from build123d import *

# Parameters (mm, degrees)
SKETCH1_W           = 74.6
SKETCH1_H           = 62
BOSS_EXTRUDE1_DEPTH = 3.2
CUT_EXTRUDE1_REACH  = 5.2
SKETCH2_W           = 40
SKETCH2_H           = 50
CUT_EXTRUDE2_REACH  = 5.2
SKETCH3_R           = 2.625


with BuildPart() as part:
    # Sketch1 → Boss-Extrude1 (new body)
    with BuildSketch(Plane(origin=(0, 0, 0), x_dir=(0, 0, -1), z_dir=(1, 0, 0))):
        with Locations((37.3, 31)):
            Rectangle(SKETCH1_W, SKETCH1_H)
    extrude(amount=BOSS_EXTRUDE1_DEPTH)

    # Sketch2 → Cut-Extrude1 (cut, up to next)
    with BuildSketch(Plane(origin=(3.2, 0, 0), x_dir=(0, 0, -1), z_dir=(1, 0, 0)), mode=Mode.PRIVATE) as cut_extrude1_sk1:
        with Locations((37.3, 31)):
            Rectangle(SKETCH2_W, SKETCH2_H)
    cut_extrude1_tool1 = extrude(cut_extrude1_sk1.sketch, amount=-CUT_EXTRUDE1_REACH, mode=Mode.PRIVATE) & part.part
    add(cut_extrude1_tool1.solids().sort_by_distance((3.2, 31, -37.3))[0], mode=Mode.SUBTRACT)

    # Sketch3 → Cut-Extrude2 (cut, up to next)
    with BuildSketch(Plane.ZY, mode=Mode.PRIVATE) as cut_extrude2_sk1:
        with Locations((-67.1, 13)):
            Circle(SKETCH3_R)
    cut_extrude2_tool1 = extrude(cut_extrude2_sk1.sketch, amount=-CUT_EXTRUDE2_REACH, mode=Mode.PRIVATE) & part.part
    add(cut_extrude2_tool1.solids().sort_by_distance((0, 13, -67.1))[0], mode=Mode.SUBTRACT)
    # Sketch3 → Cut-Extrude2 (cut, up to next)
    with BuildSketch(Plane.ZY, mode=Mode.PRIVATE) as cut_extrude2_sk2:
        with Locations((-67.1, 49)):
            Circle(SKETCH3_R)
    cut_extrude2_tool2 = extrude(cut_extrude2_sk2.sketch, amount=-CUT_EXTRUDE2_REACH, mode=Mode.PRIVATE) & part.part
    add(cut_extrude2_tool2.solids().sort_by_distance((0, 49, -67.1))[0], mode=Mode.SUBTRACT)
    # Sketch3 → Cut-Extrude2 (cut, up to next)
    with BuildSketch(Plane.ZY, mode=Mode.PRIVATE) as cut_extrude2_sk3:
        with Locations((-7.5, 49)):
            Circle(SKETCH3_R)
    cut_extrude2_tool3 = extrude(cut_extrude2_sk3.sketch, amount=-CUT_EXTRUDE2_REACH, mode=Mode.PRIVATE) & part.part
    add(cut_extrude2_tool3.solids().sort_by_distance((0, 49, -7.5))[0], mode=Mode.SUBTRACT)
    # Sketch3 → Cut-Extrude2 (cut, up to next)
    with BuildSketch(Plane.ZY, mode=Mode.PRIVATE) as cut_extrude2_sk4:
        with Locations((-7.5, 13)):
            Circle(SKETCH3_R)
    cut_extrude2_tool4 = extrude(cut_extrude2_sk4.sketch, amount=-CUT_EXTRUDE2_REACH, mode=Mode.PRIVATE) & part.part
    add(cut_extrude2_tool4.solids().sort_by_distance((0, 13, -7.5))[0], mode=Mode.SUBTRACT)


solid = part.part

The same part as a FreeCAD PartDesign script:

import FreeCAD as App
import Part
import Sketcher


def add_polygon(sketch, points):
    """Adds a closed chain of lines whose ends are joined by coincident constraints."""
    first, n = sketch.GeometryCount, len(points)
    for a, b in zip(points, points[1:] + points[:1]):
        sketch.addGeometry(Part.LineSegment(App.Vector(*a, 0), App.Vector(*b, 0)), False)
    for i in range(n):
        sketch.addConstraint(Sketcher.Constraint("Coincident", first + i, 2, first + (i + 1) % n, 1))

doc = App.newDocument("Part")
body = doc.addObject("PartDesign::Body", "Body")

# Sketch on YZ plane
sketch1 = body.newObject("Sketcher::SketchObject", "Sketch")
sketch1.AttachmentSupport = (doc.getObject("YZ_Plane"), [""])
sketch1.MapMode = "FlatFace"
add_polygon(sketch1, [(62, 0), (0, 0), (0, -75), (62, -75)])  # lines 0-3
sketch1.addConstraint(Sketcher.Constraint("Horizontal", 0))
sketch1.addConstraint(Sketcher.Constraint("Vertical", 1))
sketch1.addConstraint(Sketcher.Constraint("Horizontal", 2))
sketch1.addConstraint(Sketcher.Constraint("Vertical", 3))
sketch1.addConstraint(Sketcher.Constraint("Coincident", 0, 2, -1, 1))
sketch1.addConstraint(Sketcher.Constraint("DistanceX", 0, 2, 0, 1, 62.0))
sketch1.addConstraint(Sketcher.Constraint("DistanceY", 1, 2, 1, 1, 74.6))
pad1 = body.newObject("PartDesign::Pad", "Pad")
pad1.Profile = sketch1
pad1.Length = 3.2

# Sketch on YZ plane
sketch2 = body.newObject("Sketcher::SketchObject", "Sketch001")
sketch2.AttachmentSupport = (doc.getObject("YZ_Plane"), [""])
sketch2.MapMode = "FlatFace"
sketch2.AttachmentOffset = App.Placement(App.Vector(0, 0, 3.2), App.Rotation())
add_polygon(sketch2, [(56, -17), (6, -17), (6, -57), (56, -57)])  # lines 0-3
sketch2.addConstraint(Sketcher.Constraint("Horizontal", 0))
sketch2.addConstraint(Sketcher.Constraint("Vertical", 1))
sketch2.addConstraint(Sketcher.Constraint("Horizontal", 2))
sketch2.addConstraint(Sketcher.Constraint("Vertical", 3))
sketch2.addConstraint(Sketcher.Constraint("DistanceX", 0, 2, 0, 1, 50.0))
sketch2.addConstraint(Sketcher.Constraint("DistanceY", 1, 2, 1, 1, 40.0))
sketch2.addConstraint(Sketcher.Constraint("DistanceX", -1, 1, 0, 2, 6.0))
sketch2.addConstraint(Sketcher.Constraint("DistanceY", 0, 2, -1, 1, 17.3))
pocket1 = body.newObject("PartDesign::Pocket", "Pocket")
pocket1.Profile = sketch2
pocket1.Type = "UpToFirst"

# Sketch on YZ plane
sketch3 = body.newObject("Sketcher::SketchObject", "Sketch002")
sketch3.AttachmentSupport = (doc.getObject("YZ_Plane"), [""])
sketch3.MapMode = "FlatFace"
sketch3.addGeometry(Part.Circle(App.Vector(13, -67.1, 0), App.Vector(0, 0, 1), 2.6), False)
sketch3.addConstraint(Sketcher.Constraint("Diameter", 0, 5.25))
sketch3.addConstraint(Sketcher.Constraint("DistanceX", -1, 1, 0, 3, 13.0))
sketch3.addConstraint(Sketcher.Constraint("DistanceY", 0, 3, -1, 1, 67.1))
pocket2 = body.newObject("PartDesign::Pocket", "Pocket001")
pocket2.Profile = sketch3
pocket2.Type = "UpToFirst"
pocket2.Reversed = True

# Sketch on YZ plane
sketch4 = body.newObject("Sketcher::SketchObject", "Sketch003")
sketch4.AttachmentSupport = (doc.getObject("YZ_Plane"), [""])
sketch4.MapMode = "FlatFace"
sketch4.addGeometry(Part.Circle(App.Vector(49, -67.1, 0), App.Vector(0, 0, 1), 2.6), False)
sketch4.addConstraint(Sketcher.Constraint("Diameter", 0, 5.25))
sketch4.addConstraint(Sketcher.Constraint("DistanceX", -1, 1, 0, 3, 49.0))
sketch4.addConstraint(Sketcher.Constraint("DistanceY", 0, 3, -1, 1, 67.1))
pocket3 = body.newObject("PartDesign::Pocket", "Pocket002")
pocket3.Profile = sketch4
pocket3.Type = "UpToFirst"
pocket3.Reversed = True

# Sketch on YZ plane
sketch5 = body.newObject("Sketcher::SketchObject", "Sketch004")
sketch5.AttachmentSupport = (doc.getObject("YZ_Plane"), [""])
sketch5.MapMode = "FlatFace"
sketch5.addGeometry(Part.Circle(App.Vector(49, -7.5, 0), App.Vector(0, 0, 1), 2.6), False)
sketch5.addConstraint(Sketcher.Constraint("Diameter", 0, 5.25))
sketch5.addConstraint(Sketcher.Constraint("DistanceX", -1, 1, 0, 3, 49.0))
sketch5.addConstraint(Sketcher.Constraint("DistanceY", 0, 3, -1, 1, 7.5))
pocket4 = body.newObject("PartDesign::Pocket", "Pocket003")
pocket4.Profile = sketch5
pocket4.Type = "UpToFirst"
pocket4.Reversed = True

# Sketch on YZ plane
sketch6 = body.newObject("Sketcher::SketchObject", "Sketch005")
sketch6.AttachmentSupport = (doc.getObject("YZ_Plane"), [""])
sketch6.MapMode = "FlatFace"
sketch6.addGeometry(Part.Circle(App.Vector(13, -7.5, 0), App.Vector(0, 0, 1), 2.6), False)
sketch6.addConstraint(Sketcher.Constraint("Diameter", 0, 5.25))
sketch6.addConstraint(Sketcher.Constraint("DistanceX", -1, 1, 0, 3, 13.0))
sketch6.addConstraint(Sketcher.Constraint("DistanceY", 0, 3, -1, 1, 7.5))
pocket5 = body.newObject("PartDesign::Pocket", "Pocket004")
pocket5.Profile = sketch6
pocket5.Type = "UpToFirst"
pocket5.Reversed = True

doc.recompute()
